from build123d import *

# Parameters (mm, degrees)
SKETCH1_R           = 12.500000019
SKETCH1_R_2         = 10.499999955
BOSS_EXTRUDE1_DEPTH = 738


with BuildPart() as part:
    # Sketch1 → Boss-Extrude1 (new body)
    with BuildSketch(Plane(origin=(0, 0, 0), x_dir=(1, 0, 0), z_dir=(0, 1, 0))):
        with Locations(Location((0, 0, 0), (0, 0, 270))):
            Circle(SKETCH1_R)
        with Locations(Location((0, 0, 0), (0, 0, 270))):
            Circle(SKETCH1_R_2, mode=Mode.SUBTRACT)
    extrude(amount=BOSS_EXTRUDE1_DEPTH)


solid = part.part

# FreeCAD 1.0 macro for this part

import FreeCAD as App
import Part
import Sketcher
Q = App.Units.Quantity

doc = App.newDocument("Part")
body = doc.addObject("PartDesign::Body", "Body")

# Sketch on XZ plane
sketch1 = body.newObject("Sketcher::SketchObject", "Sketch")
sketch1.AttachmentSupport = (doc.getObject("XZ_Plane"), [""])
sketch1.MapMode = "FlatFace"
sketch1.addGeometry([
    Part.Circle(App.Vector(0, 0, 0), App.Vector(0, 0, 1), 12.5),
    Part.Circle(App.Vector(0, 0, 0), App.Vector(0, 0, 1), 10.5),
], False)
sketch1.addConstraint([
    Sketcher.Constraint("Coincident", 0, 3, -1, 1),
    Sketcher.Constraint("Coincident", 1, 3, -1, 1),
    Sketcher.Constraint("Diameter", 0, Q("25 mm")),
    Sketcher.Constraint("Diameter", 1, Q("21 mm")),
])
pad1 = body.newObject("PartDesign::Pad", "Pad")
pad1.Profile = sketch1
pad1.Length = 738
pad1.Reversed = True

doc.recompute()
